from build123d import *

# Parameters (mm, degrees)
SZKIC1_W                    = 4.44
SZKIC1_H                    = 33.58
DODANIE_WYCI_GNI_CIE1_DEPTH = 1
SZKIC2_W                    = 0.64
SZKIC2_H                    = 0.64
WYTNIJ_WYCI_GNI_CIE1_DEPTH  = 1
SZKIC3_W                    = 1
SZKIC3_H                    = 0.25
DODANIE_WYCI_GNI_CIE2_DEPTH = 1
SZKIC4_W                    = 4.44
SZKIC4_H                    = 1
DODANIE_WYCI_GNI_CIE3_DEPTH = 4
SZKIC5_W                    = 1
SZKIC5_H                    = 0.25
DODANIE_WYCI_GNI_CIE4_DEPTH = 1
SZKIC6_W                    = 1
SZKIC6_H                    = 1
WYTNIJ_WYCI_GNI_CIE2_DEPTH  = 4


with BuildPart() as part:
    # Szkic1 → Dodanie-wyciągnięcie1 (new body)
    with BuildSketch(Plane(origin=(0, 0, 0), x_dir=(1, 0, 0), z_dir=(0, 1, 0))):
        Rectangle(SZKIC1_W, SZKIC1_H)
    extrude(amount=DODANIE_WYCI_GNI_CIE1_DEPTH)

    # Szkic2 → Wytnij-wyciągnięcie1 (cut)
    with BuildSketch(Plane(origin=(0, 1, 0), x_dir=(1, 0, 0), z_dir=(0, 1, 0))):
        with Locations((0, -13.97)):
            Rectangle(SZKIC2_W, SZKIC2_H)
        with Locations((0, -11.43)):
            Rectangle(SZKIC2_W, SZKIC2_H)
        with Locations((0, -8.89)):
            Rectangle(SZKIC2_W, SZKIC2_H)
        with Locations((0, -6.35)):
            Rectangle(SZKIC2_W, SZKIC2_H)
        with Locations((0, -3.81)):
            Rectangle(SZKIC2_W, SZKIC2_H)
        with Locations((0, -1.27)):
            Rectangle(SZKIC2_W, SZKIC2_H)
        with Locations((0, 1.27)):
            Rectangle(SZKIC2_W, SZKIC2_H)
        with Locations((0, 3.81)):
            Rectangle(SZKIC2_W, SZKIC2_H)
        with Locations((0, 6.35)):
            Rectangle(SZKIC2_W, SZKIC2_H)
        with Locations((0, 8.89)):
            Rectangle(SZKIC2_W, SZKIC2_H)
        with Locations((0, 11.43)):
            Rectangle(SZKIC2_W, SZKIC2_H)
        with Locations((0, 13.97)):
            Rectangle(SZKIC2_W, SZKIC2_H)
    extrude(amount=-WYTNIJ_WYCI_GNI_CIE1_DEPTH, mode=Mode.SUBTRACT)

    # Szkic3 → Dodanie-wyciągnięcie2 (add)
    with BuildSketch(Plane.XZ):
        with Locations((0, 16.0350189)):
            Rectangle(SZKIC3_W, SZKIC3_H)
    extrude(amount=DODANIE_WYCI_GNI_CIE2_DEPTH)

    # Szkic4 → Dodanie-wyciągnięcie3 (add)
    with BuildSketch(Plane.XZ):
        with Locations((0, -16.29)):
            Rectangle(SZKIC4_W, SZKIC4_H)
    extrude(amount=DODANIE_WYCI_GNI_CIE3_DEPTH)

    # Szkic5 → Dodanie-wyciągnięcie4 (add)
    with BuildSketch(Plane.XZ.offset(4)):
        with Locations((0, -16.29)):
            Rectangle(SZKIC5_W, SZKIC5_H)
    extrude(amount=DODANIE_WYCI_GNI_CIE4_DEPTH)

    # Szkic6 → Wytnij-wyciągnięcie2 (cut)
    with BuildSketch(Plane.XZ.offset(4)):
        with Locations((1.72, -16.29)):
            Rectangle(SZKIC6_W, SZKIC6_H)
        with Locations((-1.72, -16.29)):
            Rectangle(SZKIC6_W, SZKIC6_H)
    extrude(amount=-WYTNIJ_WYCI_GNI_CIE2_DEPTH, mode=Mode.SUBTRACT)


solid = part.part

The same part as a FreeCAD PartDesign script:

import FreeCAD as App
import Part
import Sketcher

doc = App.newDocument("Part")
body = doc.addObject("PartDesign::Body", "Body")

sketch1 = body.newObject("Sketcher::SketchObject", "Sketch")
sketch1.AttachmentSupport = (doc.getObject("XZ_Plane"), [""])
sketch1.MapMode = "FlatFace"
sketch1.addGeometry(Part.LineSegment(App.Vector(-2.2, -16.8, 0), App.Vector(-2.2, 16.8, 0)), False)
sketch1.addGeometry(Part.LineSegment(App.Vector(-2.2, 16.8, 0), App.Vector(2.2, 16.8, 0)), False)
sketch1.addGeometry(Part.LineSegment(App.Vector(2.2, 16.8, 0), App.Vector(2.2, -16.8, 0)), False)
sketch1.addGeometry(Part.LineSegment(App.Vector(2.2, -16.8, 0), App.Vector(-2.2, -16.8, 0)), False)
sketch1.addConstraint(Sketcher.Constraint("Coincident", 0, 2, 1, 1))
sketch1.addConstraint(Sketcher.Constraint("Coincident", 1, 2, 2, 1))
sketch1.addConstraint(Sketcher.Constraint("Coincident", 2, 2, 3, 1))
sketch1.addConstraint(Sketcher.Constraint("Coincident", 3, 2, 0, 1))
sketch1.addConstraint(Sketcher.Constraint("Vertical", 0))
sketch1.addConstraint(Sketcher.Constraint("Horizontal", 1))
sketch1.addConstraint(Sketcher.Constraint("Vertical", 2))
sketch1.addConstraint(Sketcher.Constraint("Horizontal", 3))
sketch1.addConstraint(Sketcher.Constraint("Symmetric", 0, 2, 2, 2, -1, 1))
sketch1.addConstraint(Sketcher.Constraint("DistanceX", 1, 1, 1, 2, 4.44))
sketch1.addConstraint(Sketcher.Constraint("DistanceY", 0, 1, 0, 2, 33.58))
pad1 = body.newObject("PartDesign::Pad", "Pad")
pad1.Profile = sketch1
pad1.Length = 1
pad1.Reversed = True

sketch2 = body.newObject("Sketcher::SketchObject", "Sketch001")
sketch2.AttachmentSupport = (doc.getObject("XZ_Plane"), [""])
sketch2.MapMode = "FlatFace"
sketch2.AttachmentOffset = App.Placement(App.Vector(0, 0, -1), App.Rotation())
sketch2.addGeometry(Part.LineSegment(App.Vector(-0.3, 13.7, 0), App.Vector(-0.3, 14.3, 0)), False)
sketch2.addGeometry(Part.LineSegment(App.Vector(-0.3, 14.3, 0), App.Vector(0.3, 14.3, 0)), False)
sketch2.addGeometry(Part.LineSegment(App.Vector(0.3, 14.3, 0), App.Vector(0.3, 13.7, 0)), False)
sketch2.addGeometry(Part.LineSegment(App.Vector(0.3, 13.7, 0), App.Vector(-0.3, 13.7, 0)), False)
sketch2.addGeometry(Part.LineSegment(App.Vector(-0.3, 11.1, 0), App.Vector(-0.3, 11.8, 0)), False)
sketch2.addGeometry(Part.LineSegment(App.Vector(-0.3, 11.8, 0), App.Vector(0.3, 11.8, 0)), False)
sketch2.addGeometry(Part.LineSegment(App.Vector(0.3, 11.8, 0), App.Vector(0.3, 11.1, 0)), False)
sketch2.addGeometry(Part.LineSegment(App.Vector(0.3, 11.1, 0), App.Vector(-0.3, 11.1, 0)), False)
sketch2.addGeometry(Part.LineSegment(App.Vector(-0.3, 8.6, 0), App.Vector(-0.3, 9.2, 0)), False)
sketch2.addGeometry(Part.LineSegment(App.Vector(-0.3, 9.2, 0), App.Vector(0.3, 9.2, 0)), False)
sketch2.addGeometry(Part.LineSegment(App.Vector(0.3, 9.2, 0), App.Vector(0.3, 8.6, 0)), False)
sketch2.addGeometry(Part.LineSegment(App.Vector(0.3, 8.6, 0), App.Vector(-0.3, 8.6, 0)), False)
sketch2.addGeometry(Part.LineSegment(App.Vector(-0.3, 6, 0), App.Vector(-0.3, 6.7, 0)), False)
sketch2.addGeometry(Part.LineSegment(App.Vector(-0.3, 6.7, 0), App.Vector(0.3, 6.7, 0)), False)
sketch2.addGeometry(Part.LineSegment(App.Vector(0.3, 6.7, 0), App.Vector(0.3, 6, 0)), False)
sketch2.addGeometry(Part.LineSegment(App.Vector(0.3, 6, 0), App.Vector(-0.3, 6, 0)), False)
sketch2.addGeometry(Part.LineSegment(App.Vector(-0.3, 3.5, 0), App.Vector(-0.3, 4.1, 0)), False)
sketch2.addGeometry(Part.LineSegment(App.Vector(-0.3, 4.1, 0), App.Vector(0.3, 4.1, 0)), False)
sketch2.addGeometry(Part.LineSegment(App.Vector(0.3, 4.1, 0), App.Vector(0.3, 3.5, 0)), False)
sketch2.addGeometry(Part.LineSegment(App.Vector(0.3, 3.5, 0), App.Vector(-0.3, 3.5, 0)), False)
sketch2.addGeometry(Part.LineSegment(App.Vector(-0.3, 0.9, 0), App.Vector(-0.3, 1.6, 0)), False)
sketch2.addGeometry(Part.LineSegment(App.Vector(-0.3, 1.6, 0), App.Vector(0.3, 1.6, 0)), False)
sketch2.addGeometry(Part.LineSegment(App.Vector(0.3, 1.6, 0), App.Vector(0.3, 0.9, 0)), False)
sketch2.addGeometry(Part.LineSegment(App.Vector(0.3, 0.9, 0), App.Vector(-0.3, 0.9, 0)), False)
sketch2.addGeometry(Part.LineSegment(App.Vector(-0.3, -1.6, 0), App.Vector(-0.3, -0.9, 0)), False)
sketch2.addGeometry(Part.LineSegment(App.Vector(-0.3, -0.9, 0), App.Vector(0.3, -0.9, 0)), False)
sketch2.addGeometry(Part.LineSegment(App.Vector(0.3, -0.9, 0), App.Vector(0.3, -1.6, 0)), False)
sketch2.addGeometry(Part.LineSegment(App.Vector(0.3, -1.6, 0), App.Vector(-0.3, -1.6, 0)), False)
sketch2.addGeometry(Part.LineSegment(App.Vector(-0.3, -4.1, 0), App.Vector(-0.3, -3.5, 0)), False)
sketch2.addGeometry(Part.LineSegment(App.Vector(-0.3, -3.5, 0), App.Vector(0.3, -3.5, 0)), False)
sketch2.addGeometry(Part.LineSegment(App.Vector(0.3, -3.5, 0), App.Vector(0.3, -4.1, 0)), False)
sketch2.addGeometry(Part.LineSegment(App.Vector(0.3, -4.1, 0), App.Vector(-0.3, -4.1, 0)), False)
sketch2.addGeometry(Part.LineSegment(App.Vector(-0.3, -6.7, 0), App.Vector(-0.3, -6, 0)), False)
sketch2.addGeometry(Part.LineSegment(App.Vector(-0.3, -6, 0), App.Vector(0.3, -6, 0)), False)
sketch2.addGeometry(Part.LineSegment(App.Vector(0.3, -6, 0), App.Vector(0.3, -6.7, 0)), False)
sketch2.addGeometry(Part.LineSegment(App.Vector(0.3, -6.7, 0), App.Vector(-0.3, -6.7, 0)), False)
sketch2.addGeometry(Part.LineSegment(App.Vector(-0.3, -9.2, 0), App.Vector(-0.3, -8.6, 0)), False)
sketch2.addGeometry(Part.LineSegment(App.Vector(-0.3, -8.6, 0), App.Vector(0.3, -8.6, 0)), False)
sketch2.addGeometry(Part.LineSegment(App.Vector(0.3, -8.6, 0), App.Vector(0.3, -9.2, 0)), False)
sketch2.addGeometry(Part.LineSegment(App.Vector(0.3, -9.2, 0), App.Vector(-0.3, -9.2, 0)), False)
sketch2.addGeometry(Part.LineSegment(App.Vector(-0.3, -11.8, 0), App.Vector(-0.3, -11.1, 0)), False)
sketch2.addGeometry(Part.LineSegment(App.Vector(-0.3, -11.1, 0), App.Vector(0.3, -11.1, 0)), False)
sketch2.addGeometry(Part.LineSegment(App.Vector(0.3, -11.1, 0), App.Vector(0.3, -11.8, 0)), False)
sketch2.addGeometry(Part.LineSegment(App.Vector(0.3, -11.8, 0), App.Vector(-0.3, -11.8, 0)), False)
sketch2.addGeometry(Part.LineSegment(App.Vector(-0.3, -14.3, 0), App.Vector(-0.3, -13.7, 0)), False)
sketch2.addGeometry(Part.LineSegment(App.Vector(-0.3, -13.7, 0), App.Vector(0.3, -13.7, 0)), False)
sketch2.addGeometry(Part.LineSegment(App.Vector(0.3, -13.7, 0), App.Vector(0.3, -14.3, 0)), False)
sketch2.addGeometry(Part.LineSegment(App.Vector(0.3, -14.3, 0), App.Vector(-0.3, -14.3, 0)), False)
sketch2.addConstraint(Sketcher.Constraint("Coincident", 0, 2, 1, 1))
sketch2.addConstraint(Sketcher.Constraint("Coincident", 1, 2, 2, 1))
sketch2.addConstraint(Sketcher.Constraint("Coincident", 2, 2, 3, 1))
sketch2.addConstraint(Sketcher.Constraint("Coincident", 3, 2, 0, 1))
sketch2.addConstraint(Sketcher.Constraint("Coincident", 4, 2, 5, 1))
sketch2.addConstraint(Sketcher.Constraint("Coincident", 5, 2, 6, 1))
sketch2.addConstraint(Sketcher.Constraint("Coincident", 6, 2, 7, 1))
sketch2.addConstraint(Sketcher.Constraint("Coincident", 7, 2, 4, 1))
sketch2.addConstraint(Sketcher.Constraint("Coincident", 8, 2, 9, 1))
sketch2.addConstraint(Sketcher.Constraint("Coincident", 9, 2, 10, 1))
sketch2.addConstraint(Sketcher.Constraint("Coincident", 10, 2, 11, 1))
sketch2.addConstraint(Sketcher.Constraint("Coincident", 11, 2, 8, 1))
sketch2.addConstraint(Sketcher.Constraint("Coincident", 12, 2, 13, 1))
sketch2.addConstraint(Sketcher.Constraint("Coincident", 13, 2, 14, 1))
sketch2.addConstraint(Sketcher.Constraint("Coincident", 14, 2, 15, 1))
sketch2.addConstraint(Sketcher.Constraint("Coincident", 15, 2, 12, 1))
sketch2.addConstraint(Sketcher.Constraint("Coincident", 16, 2, 17, 1))
sketch2.addConstraint(Sketcher.Constraint("Coincident", 17, 2, 18, 1))
sketch2.addConstraint(Sketcher.Constraint("Coincident", 18, 2, 19, 1))
sketch2.addConstraint(Sketcher.Constraint("Coincident", 19, 2, 16, 1))
sketch2.addConstraint(Sketcher.Constraint("Coincident", 20, 2, 21, 1))
sketch2.addConstraint(Sketcher.Constraint("Coincident", 21, 2, 22, 1))
sketch2.addConstraint(Sketcher.Constraint("Coincident", 22, 2, 23, 1))
sketch2.addConstraint(Sketcher.Constraint("Coincident", 23, 2, 20, 1))
sketch2.addConstraint(Sketcher.Constraint("Coincident", 24, 2, 25, 1))
sketch2.addConstraint(Sketcher.Constraint("Coincident", 25, 2, 26, 1))
sketch2.addConstraint(Sketcher.Constraint("Coincident", 26, 2, 27, 1))
sketch2.addConstraint(Sketcher.Constraint("Coincident", 27, 2, 24, 1))
sketch2.addConstraint(Sketcher.Constraint("Coincident", 28, 2, 29, 1))
sketch2.addConstraint(Sketcher.Constraint("Coincident", 29, 2, 30, 1))
sketch2.addConstraint(Sketcher.Constraint("Coincident", 30, 2, 31, 1))
sketch2.addConstraint(Sketcher.Constraint("Coincident", 31, 2, 28, 1))
sketch2.addConstraint(Sketcher.Constraint("Coincident", 32, 2, 33, 1))
sketch2.addConstraint(Sketcher.Constraint("Coincident", 33, 2, 34, 1))
sketch2.addConstraint(Sketcher.Constraint("Coincident", 34, 2, 35, 1))
sketch2.addConstraint(Sketcher.Constraint("Coincident", 35, 2, 32, 1))
sketch2.addConstraint(Sketcher.Constraint("Coincident", 36, 2, 37, 1))
sketch2.addConstraint(Sketcher.Constraint("Coincident", 37, 2, 38, 1))
sketch2.addConstraint(Sketcher.Constraint("Coincident", 38, 2, 39, 1))
sketch2.addConstraint(Sketcher.Constraint("Coincident", 39, 2, 36, 1))
sketch2.addConstraint(Sketcher.Constraint("Coincident", 40, 2, 41, 1))
sketch2.addConstraint(Sketcher.Constraint("Coincident", 41, 2, 42, 1))
sketch2.addConstraint(Sketcher.Constraint("Coincident", 42, 2, 43, 1))
sketch2.addConstraint(Sketcher.Constraint("Coincident", 43, 2, 40, 1))
sketch2.addConstraint(Sketcher.Constraint("Coincident", 44, 2, 45, 1))
sketch2.addConstraint(Sketcher.Constraint("Coincident", 45, 2, 46, 1))
sketch2.addConstraint(Sketcher.Constraint("Coincident", 46, 2, 47, 1))
sketch2.addConstraint(Sketcher.Constraint("Coincident", 47, 2, 44, 1))
sketch2.addConstraint(Sketcher.Constraint("Vertical", 0))
sketch2.addConstraint(Sketcher.Constraint("Horizontal", 1))
sketch2.addConstraint(Sketcher.Constraint("Vertical", 2))
sketch2.addConstraint(Sketcher.Constraint("Horizontal", 3))
sketch2.addConstraint(Sketcher.Constraint("Vertical", 4))
sketch2.addConstraint(Sketcher.Constraint("Horizontal", 5))
sketch2.addConstraint(Sketcher.Constraint("Vertical", 6))
sketch2.addConstraint(Sketcher.Constraint("Horizontal", 7))
sketch2.addConstraint(Sketcher.Constraint("Vertical", 8))
sketch2.addConstraint(Sketcher.Constraint("Horizontal", 9))
sketch2.addConstraint(Sketcher.Constraint("Vertical", 10))
sketch2.addConstraint(Sketcher.Constraint("Horizontal", 11))
sketch2.addConstraint(Sketcher.Constraint("Vertical", 12))
sketch2.addConstraint(Sketcher.Constraint("Horizontal", 13))
sketch2.addConstraint(Sketcher.Constraint("Vertical", 14))
sketch2.addConstraint(Sketcher.Constraint("Horizontal", 15))
sketch2.addConstraint(Sketcher.Constraint("Vertical", 16))
sketch2.addConstraint(Sketcher.Constraint("Horizontal", 17))
sketch2.addConstraint(Sketcher.Constraint("Vertical", 18))
sketch2.addConstraint(Sketcher.Constraint("Horizontal", 19))
sketch2.addConstraint(Sketcher.Constraint("Vertical", 20))
sketch2.addConstraint(Sketcher.Constraint("Horizontal", 21))
sketch2.addConstraint(Sketcher.Constraint("Vertical", 22))
sketch2.addConstraint(Sketcher.Constraint("Horizontal", 23))
sketch2.addConstraint(Sketcher.Constraint("Vertical", 24))
sketch2.addConstraint(Sketcher.Constraint("Horizontal", 25))
sketch2.addConstraint(Sketcher.Constraint("Vertical", 26))
sketch2.addConstraint(Sketcher.Constraint("Horizontal", 27))
sketch2.addConstraint(Sketcher.Constraint("Vertical", 28))
sketch2.addConstraint(Sketcher.Constraint("Horizontal", 29))
sketch2.addConstraint(Sketcher.Constraint("Vertical", 30))
sketch2.addConstraint(Sketcher.Constraint("Horizontal", 31))
sketch2.addConstraint(Sketcher.Constraint("Vertical", 32))
sketch2.addConstraint(Sketcher.Constraint("Horizontal", 33))
sketch2.addConstraint(Sketcher.Constraint("Vertical", 34))
sketch2.addConstraint(Sketcher.Constraint("Horizontal", 35))
sketch2.addConstraint(Sketcher.Constraint("Vertical", 36))
sketch2.addConstraint(Sketcher.Constraint("Horizontal", 37))
sketch2.addConstraint(Sketcher.Constraint("Vertical", 38))
sketch2.addConstraint(Sketcher.Constraint("Horizontal", 39))
sketch2.addConstraint(Sketcher.Constraint("Vertical", 40))
sketch2.addConstraint(Sketcher.Constraint("Horizontal", 41))
sketch2.addConstraint(Sketcher.Constraint("Vertical", 42))
sketch2.addConstraint(Sketcher.Constraint("Horizontal", 43))
sketch2.addConstraint(Sketcher.Constraint("Vertical", 44))
sketch2.addConstraint(Sketcher.Constraint("Horizontal", 45))
sketch2.addConstraint(Sketcher.Constraint("Vertical", 46))
sketch2.addConstraint(Sketcher.Constraint("Horizontal", 47))
sketch2.addConstraint(Sketcher.Constraint("Symmetric", 22, 2, 24, 2, -1, 1))
sketch2.addConstraint(Sketcher.Constraint("Symmetric", 20, 2, 26, 2, -1, 1))
sketch2.addConstraint(Sketcher.Constraint("Symmetric", 18, 2, 28, 2, -1, 1))
sketch2.addConstraint(Sketcher.Constraint("Symmetric", 16, 2, 30, 2, -1, 1))
sketch2.addConstraint(Sketcher.Constraint("Symmetric", 14, 2, 32, 2, -1, 1))
sketch2.addConstraint(Sketcher.Constraint("Symmetric", 12, 2, 34, 2, -1, 1))
sketch2.addConstraint(Sketcher.Constraint("Symmetric", 10, 2, 36, 2, -1, 1))
sketch2.addConstraint(Sketcher.Constraint("Symmetric", 8, 2, 38, 2, -1, 1))
sketch2.addConstraint(Sketcher.Constraint("Symmetric", 6, 2, 40, 2, -1, 1))
sketch2.addConstraint(Sketcher.Constraint("Symmetric", 4, 2, 42, 2, -1, 1))
sketch2.addConstraint(Sketcher.Constraint("Symmetric", 2, 2, 44, 2, -1, 1))
sketch2.addConstraint(Sketcher.Constraint("Symmetric", 0, 2, 46, 2, -1, 1))
sketch2.addConstraint(Sketcher.Constraint("Vertical", 3, 2, 4, 2))
sketch2.addConstraint(Sketcher.Constraint("Vertical", 2, 2, 5, 2))
sketch2.addConstraint(Sketcher.Constraint("Vertical", 7, 2, 8, 2))
sketch2.addConstraint(Sketcher.Constraint("Vertical", 6, 2, 9, 2))
sketch2.addConstraint(Sketcher.Constraint("Vertical", 11, 2, 12, 2))
sketch2.addConstraint(Sketcher.Constraint("Vertical", 10, 2, 13, 2))
sketch2.addConstraint(Sketcher.Constraint("Vertical", 15, 2, 16, 2))
sketch2.addConstraint(Sketcher.Constraint("Vertical", 14, 2, 17, 2))
sketch2.addConstraint(Sketcher.Constraint("Vertical", 19, 2, 20, 2))
sketch2.addConstraint(Sketcher.Constraint("Vertical", 18, 2, 21, 2))
sketch2.addConstraint(Sketcher.Constraint("Vertical", 23, 2, 24, 2))
sketch2.addConstraint(Sketcher.Constraint("Equal", 47, 0))
sketch2.addConstraint(Sketcher.Constraint("Equal", 2, 4))
sketch2.addConstraint(Sketcher.Constraint("Equal", 6, 8))
sketch2.addConstraint(Sketcher.Constraint("Equal", 10, 12))
sketch2.addConstraint(Sketcher.Constraint("Equal", 14, 16))
sketch2.addConstraint(Sketcher.Constraint("Equal", 18, 20))
sketch2.addConstraint(Sketcher.Constraint("DistanceX", 1, 1, 1, 2, 0.64))
sketch2.addConstraint(Sketcher.Constraint("DistanceY", 4, 2, 3, 2, 1.9))
sketch2.addConstraint(Sketcher.Constraint("DistanceY", 8, 2, 7, 2, 1.9))
sketch2.addConstraint(Sketcher.Constraint("DistanceY", 12, 2, 11, 2, 1.9))
sketch2.addConstraint(Sketcher.Constraint("DistanceY", 16, 2, 15, 2, 1.9))
sketch2.addConstraint(Sketcher.Constraint("DistanceY", 20, 2, 19, 2, 1.9))
sketch2.addConstraint(Sketcher.Constraint("DistanceY", 24, 2, 23, 2, 1.9))
pocket1 = body.newObject("PartDesign::Pocket", "Pocket")
pocket1.Profile = sketch2
pocket1.Length = 1
pocket1.Reversed = True

sketch3 = body.newObject("Sketcher::SketchObject", "Sketch002")
sketch3.AttachmentSupport = (doc.getObject("XZ_Plane"), [""])
sketch3.MapMode = "FlatFace"
sketch3.addGeometry(Part.LineSegment(App.Vector(-0.5, 16.16, 0), App.Vector(-0.5, 15.91, 0)), False)
sketch3.addGeometry(Part.LineSegment(App.Vector(-0.5, 15.91, 0), App.Vector(0.5, 15.91, 0)), False)
sketch3.addGeometry(Part.LineSegment(App.Vector(0.5, 15.91, 0), App.Vector(0.5, 16.16, 0)), False)
sketch3.addGeometry(Part.LineSegment(App.Vector(0.5, 16.16, 0), App.Vector(-0.5, 16.16, 0)), False)
sketch3.addConstraint(Sketcher.Constraint("Coincident", 0, 2, 1, 1))
sketch3.addConstraint(Sketcher.Constraint("Coincident", 1, 2, 2, 1))
sketch3.addConstraint(Sketcher.Constraint("Coincident", 2, 2, 3, 1))
sketch3.addConstraint(Sketcher.Constraint("Coincident", 3, 2, 0, 1))
sketch3.addConstraint(Sketcher.Constraint("Vertical", 0))
sketch3.addConstraint(Sketcher.Constraint("Horizontal", 1))
sketch3.addConstraint(Sketcher.Constraint("Vertical", 2))
sketch3.addConstraint(Sketcher.Constraint("Horizontal", 3))
sketch3.addConstraint(Sketcher.Constraint("DistanceX", 1, 1, 1, 2, 1.0))
sketch3.addConstraint(Sketcher.Constraint("DistanceY", 0, 2, 0, 1, 0.25))
sketch3.addConstraint(Sketcher.Constraint("DistanceX", 0, 2, -1, 1, 0.5))
sketch3.addConstraint(Sketcher.Constraint("DistanceY", -1, 1, 0, 2, 15.910019))
pad2 = body.newObject("PartDesign::Pad", "Pad001")
pad2.Profile = sketch3
pad2.Length = 1

sketch4 = body.newObject("Sketcher::SketchObject", "Sketch003")
sketch4.AttachmentSupport = (doc.getObject("XZ_Plane"), [""])
sketch4.MapMode = "FlatFace"
sketch4.addGeometry(Part.LineSegment(App.Vector(-2.2, -15.8, 0), App.Vector(-2.2, -16.8, 0)), False)
sketch4.addGeometry(Part.LineSegment(App.Vector(-2.2, -16.8, 0), App.Vector(2.2, -16.8, 0)), False)
sketch4.addGeometry(Part.LineSegment(App.Vector(2.2, -16.8, 0), App.Vector(2.2, -15.8, 0)), False)
sketch4.addGeometry(Part.LineSegment(App.Vector(2.2, -15.8, 0), App.Vector(-2.2, -15.8, 0)), False)
sketch4.addConstraint(Sketcher.Constraint("Coincident", 0, 2, 1, 1))
sketch4.addConstraint(Sketcher.Constraint("Coincident", 1, 2, 2, 1))
sketch4.addConstraint(Sketcher.Constraint("Coincident", 2, 2, 3, 1))
sketch4.addConstraint(Sketcher.Constraint("Coincident", 3, 2, 0, 1))
sketch4.addConstraint(Sketcher.Constraint("Vertical", 0))
sketch4.addConstraint(Sketcher.Constraint("Horizontal", 1))
sketch4.addConstraint(Sketcher.Constraint("Vertical", 2))
sketch4.addConstraint(Sketcher.Constraint("Horizontal", 3))
sketch4.addConstraint(Sketcher.Constraint("DistanceY", 0, 2, 0, 1, 1.0))
sketch4.addConstraint(Sketcher.Constraint("DistanceX", 1, 1, 1, 2, 4.44))
sketch4.addConstraint(Sketcher.Constraint("DistanceX", 0, 2, -1, 1, 2.22))
sketch4.addConstraint(Sketcher.Constraint("DistanceY", 0, 2, -1, 1, 16.79))
pad3 = body.newObject("PartDesign::Pad", "Pad002")
pad3.Profile = sketch4
pad3.Length = 4

sketch5 = body.newObject("Sketcher::SketchObject", "Sketch004")
sketch5.AttachmentSupport = (doc.getObject("XZ_Plane"), [""])
sketch5.MapMode = "FlatFace"
sketch5.AttachmentOffset = App.Placement(App.Vector(0, 0, 4), App.Rotation())
sketch5.addGeometry(Part.LineSegment(App.Vector(-0.5, -16.16, 0), App.Vector(-0.5, -16.41, 0)), False)
sketch5.addGeometry(Part.LineSegment(App.Vector(-0.5, -16.41, 0), App.Vector(0.5, -16.41, 0)), False)
sketch5.addGeometry(Part.LineSegment(App.Vector(0.5, -16.41, 0), App.Vector(0.5, -16.16, 0)), False)
sketch5.addGeometry(Part.LineSegment(App.Vector(0.5, -16.16, 0), App.Vector(-0.5, -16.16, 0)), False)
sketch5.addConstraint(Sketcher.Constraint("Coincident", 0, 2, 1, 1))
sketch5.addConstraint(Sketcher.Constraint("Coincident", 1, 2, 2, 1))
sketch5.addConstraint(Sketcher.Constraint("Coincident", 2, 2, 3, 1))
sketch5.addConstraint(Sketcher.Constraint("Coincident", 3, 2, 0, 1))
sketch5.addConstraint(Sketcher.Constraint("Vertical", 0))
sketch5.addConstraint(Sketcher.Constraint("Horizontal", 1))
sketch5.addConstraint(Sketcher.Constraint("Vertical", 2))
sketch5.addConstraint(Sketcher.Constraint("Horizontal", 3))
sketch5.addConstraint(Sketcher.Constraint("DistanceX", 1, 1, 1, 2, 1.0))
sketch5.addConstraint(Sketcher.Constraint("DistanceY", 0, 2, 0, 1, 0.25))
sketch5.addConstraint(Sketcher.Constraint("DistanceX", 0, 2, -1, 1, 0.5))
sketch5.addConstraint(Sketcher.Constraint("DistanceY", 0, 2, -1, 1, 16.415))
pad4 = body.newObject("PartDesign::Pad", "Pad003")
pad4.Profile = sketch5
pad4.Length = 1

sketch6 = body.newObject("Sketcher::SketchObject", "Sketch005")
sketch6.AttachmentSupport = (doc.getObject("XZ_Plane"), [""])
sketch6.MapMode = "FlatFace"
sketch6.AttachmentOffset = App.Placement(App.Vector(0, 0, 4), App.Rotation())
sketch6.addGeometry(Part.LineSegment(App.Vector(1.2, -15.8, 0), App.Vector(1.2, -16.8, 0)), False)
sketch6.addGeometry(Part.LineSegment(App.Vector(1.2, -16.8, 0), App.Vector(2.2, -16.8, 0)), False)
sketch6.addGeometry(Part.LineSegment(App.Vector(2.2, -16.8, 0), App.Vector(2.2, -15.8, 0)), False)
sketch6.addGeometry(Part.LineSegment(App.Vector(2.2, -15.8, 0), App.Vector(1.2, -15.8, 0)), False)
sketch6.addGeometry(Part.LineSegment(App.Vector(-2.2, -15.8, 0), App.Vector(-2.2, -16.8, 0)), False)
sketch6.addGeometry(Part.LineSegment(App.Vector(-2.2, -16.8, 0), App.Vector(-1.2, -16.8, 0)), False)
sketch6.addGeometry(Part.LineSegment(App.Vector(-1.2, -16.8, 0), App.Vector(-1.2, -15.8, 0)), False)
sketch6.addGeometry(Part.LineSegment(App.Vector(-1.2, -15.8, 0), App.Vector(-2.2, -15.8, 0)), False)
sketch6.addConstraint(Sketcher.Constraint("Coincident", 0, 2, 1, 1))
sketch6.addConstraint(Sketcher.Constraint("Coincident", 1, 2, 2, 1))
sketch6.addConstraint(Sketcher.Constraint("Coincident", 2, 2, 3, 1))
sketch6.addConstraint(Sketcher.Constraint("Coincident", 3, 2, 0, 1))
sketch6.addConstraint(Sketcher.Constraint("Coincident", 4, 2, 5, 1))
sketch6.addConstraint(Sketcher.Constraint("Coincident", 5, 2, 6, 1))
sketch6.addConstraint(Sketcher.Constraint("Coincident", 6, 2, 7, 1))
sketch6.addConstraint(Sketcher.Constraint("Coincident", 7, 2, 4, 1))
sketch6.addConstraint(Sketcher.Constraint("Vertical", 0))
sketch6.addConstraint(Sketcher.Constraint("Horizontal", 1))
sketch6.addConstraint(Sketcher.Constraint("Vertical", 2))
sketch6.addConstraint(Sketcher.Constraint("Horizontal", 3))
sketch6.addConstraint(Sketcher.Constraint("Vertical", 4))
sketch6.addConstraint(Sketcher.Constraint("Horizontal", 5))
sketch6.addConstraint(Sketcher.Constraint("Vertical", 6))
sketch6.addConstraint(Sketcher.Constraint("Horizontal", 7))
sketch6.addConstraint(Sketcher.Constraint("Symmetric", 1, 2, 4, 2, -2))
sketch6.addConstraint(Sketcher.Constraint("Symmetric", 3, 2, 6, 2, -2))
sketch6.addConstraint(Sketcher.Constraint("Equal", 7, 0))
sketch6.addConstraint(Sketcher.Constraint("DistanceX", 1, 1, 1, 2, 1.0))
sketch6.addConstraint(Sketcher.Constraint("DistanceX", -1, 1, 0, 2, 1.22))
sketch6.addConstraint(Sketcher.Constraint("DistanceY", 0, 2, -1, 1, 16.79))
pocket2 = body.newObject("PartDesign::Pocket", "Pocket001")
pocket2.Profile = sketch6
pocket2.Length = 4

doc.recompute()
